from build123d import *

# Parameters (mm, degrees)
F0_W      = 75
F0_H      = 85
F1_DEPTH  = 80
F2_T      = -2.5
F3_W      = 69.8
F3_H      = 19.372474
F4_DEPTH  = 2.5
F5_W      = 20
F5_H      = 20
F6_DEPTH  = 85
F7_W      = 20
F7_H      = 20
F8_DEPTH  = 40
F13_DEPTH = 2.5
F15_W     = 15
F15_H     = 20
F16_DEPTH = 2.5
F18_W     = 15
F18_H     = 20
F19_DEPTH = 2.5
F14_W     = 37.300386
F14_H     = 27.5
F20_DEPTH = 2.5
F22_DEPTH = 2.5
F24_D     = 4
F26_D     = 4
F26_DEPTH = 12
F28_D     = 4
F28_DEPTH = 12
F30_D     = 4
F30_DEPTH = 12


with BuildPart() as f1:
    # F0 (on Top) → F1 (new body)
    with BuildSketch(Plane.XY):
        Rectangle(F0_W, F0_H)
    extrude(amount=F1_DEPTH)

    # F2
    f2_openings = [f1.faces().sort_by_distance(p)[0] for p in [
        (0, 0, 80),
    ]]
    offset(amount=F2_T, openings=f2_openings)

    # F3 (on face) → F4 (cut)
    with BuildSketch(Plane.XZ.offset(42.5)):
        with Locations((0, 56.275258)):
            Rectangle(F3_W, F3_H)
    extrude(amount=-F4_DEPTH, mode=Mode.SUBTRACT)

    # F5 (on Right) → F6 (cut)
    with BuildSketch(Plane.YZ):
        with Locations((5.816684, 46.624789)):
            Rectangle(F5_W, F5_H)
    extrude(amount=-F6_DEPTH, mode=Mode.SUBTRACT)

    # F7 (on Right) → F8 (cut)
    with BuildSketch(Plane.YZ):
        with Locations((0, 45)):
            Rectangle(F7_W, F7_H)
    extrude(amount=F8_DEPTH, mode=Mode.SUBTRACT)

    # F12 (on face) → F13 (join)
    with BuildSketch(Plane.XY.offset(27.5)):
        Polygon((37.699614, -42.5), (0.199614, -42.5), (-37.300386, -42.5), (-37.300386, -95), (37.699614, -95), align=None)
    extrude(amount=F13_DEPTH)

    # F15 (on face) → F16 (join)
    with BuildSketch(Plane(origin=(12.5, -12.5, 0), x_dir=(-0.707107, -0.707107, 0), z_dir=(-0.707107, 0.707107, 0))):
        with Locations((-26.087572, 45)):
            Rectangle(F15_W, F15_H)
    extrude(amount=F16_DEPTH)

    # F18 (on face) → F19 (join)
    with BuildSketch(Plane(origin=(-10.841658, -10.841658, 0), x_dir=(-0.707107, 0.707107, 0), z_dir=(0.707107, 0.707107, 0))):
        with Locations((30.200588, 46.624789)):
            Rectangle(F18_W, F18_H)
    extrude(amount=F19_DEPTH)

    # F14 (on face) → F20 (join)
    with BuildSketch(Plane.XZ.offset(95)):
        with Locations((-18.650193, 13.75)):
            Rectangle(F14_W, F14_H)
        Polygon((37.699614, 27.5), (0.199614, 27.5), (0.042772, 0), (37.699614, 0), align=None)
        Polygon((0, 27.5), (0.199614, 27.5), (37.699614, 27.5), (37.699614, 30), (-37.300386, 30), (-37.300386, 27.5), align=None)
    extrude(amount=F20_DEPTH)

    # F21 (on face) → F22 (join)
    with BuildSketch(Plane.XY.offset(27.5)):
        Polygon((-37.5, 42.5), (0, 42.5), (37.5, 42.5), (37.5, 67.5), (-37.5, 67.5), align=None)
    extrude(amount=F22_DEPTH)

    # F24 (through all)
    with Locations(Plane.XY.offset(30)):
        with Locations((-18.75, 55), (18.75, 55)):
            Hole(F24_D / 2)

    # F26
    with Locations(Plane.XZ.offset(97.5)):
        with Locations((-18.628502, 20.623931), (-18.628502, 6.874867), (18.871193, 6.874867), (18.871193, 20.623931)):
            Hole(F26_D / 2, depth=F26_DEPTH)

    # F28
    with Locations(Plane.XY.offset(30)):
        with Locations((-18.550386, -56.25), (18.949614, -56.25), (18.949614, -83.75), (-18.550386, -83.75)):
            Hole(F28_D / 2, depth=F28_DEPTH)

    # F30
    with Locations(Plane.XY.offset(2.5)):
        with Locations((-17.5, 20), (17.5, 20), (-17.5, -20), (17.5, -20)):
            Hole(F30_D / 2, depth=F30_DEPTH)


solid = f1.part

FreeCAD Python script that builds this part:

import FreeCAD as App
import Part
import Sketcher
from FreeCAD import Vector
Q = App.Units.Quantity


def faces_at(feature, points):
    """Names of the faces that lie closest to the given points."""
    faces = feature.Shape.Faces
    near = lambda p: min(range(len(faces)), key=lambda i: faces[i].distToShape(Part.Vertex(*p))[0])
    return sorted({f"Face{near(p) + 1}" for p in points})


def add_polygon(sketch, points):
    """Adds a closed chain of lines whose ends are joined by coincident constraints."""
    first, n = sketch.GeometryCount, len(points)
    for a, b in zip(points, points[1:] + points[:1]):
        sketch.addGeometry(Part.LineSegment(App.Vector(*a, 0), App.Vector(*b, 0)), False)
    for i in range(n):
        sketch.addConstraint(Sketcher.Constraint("Coincident", first + i, 2, first + (i + 1) % n, 1))

doc = App.newDocument("Part")
body = doc.addObject("PartDesign::Body", "Body")

sketch1 = body.newObject("Sketcher::SketchObject", "Sketch")
sketch1.AttachmentSupport = (doc.getObject("XY_Plane"), [""])
sketch1.MapMode = "FlatFace"
add_polygon(sketch1, [(-37.5, 42.5), (-37.5, -42.5), (37.5, -42.5), (37.5, 42.5)])
sketch1.addConstraint(Sketcher.Constraint("Vertical", 0))
sketch1.addConstraint(Sketcher.Constraint("Horizontal", 1))
sketch1.addConstraint(Sketcher.Constraint("Vertical", 2))
sketch1.addConstraint(Sketcher.Constraint("Horizontal", 3))
sketch1.addConstraint(Sketcher.Constraint("Symmetric", 0, 2, 2, 2, -1, 1))
sketch1.addConstraint(Sketcher.Constraint("DistanceX", 1, 1, 1, 2, Q("75 mm")))
sketch1.addConstraint(Sketcher.Constraint("DistanceY", 0, 2, 0, 1, Q("85 mm")))
pad1 = body.newObject("PartDesign::Pad", "Pad")
pad1.Profile = sketch1
pad1.Length = 80
doc.recompute()

thickness = body.newObject("PartDesign::Thickness", "Thickness")
thickness.Base = (pad1, faces_at(pad1, [(0, 0, 80)]))
thickness.Value = 2.5
thickness.Reversed = True
thickness.Join = "Arc"

sketch2 = body.newObject("Sketcher::SketchObject", "Sketch001")
sketch2.AttachmentSupport = (doc.getObject("XZ_Plane"), [""])
sketch2.MapMode = "FlatFace"
sketch2.AttachmentOffset = App.Placement(Vector(0, 0, 42.5), App.Rotation())
add_polygon(sketch2, [(-34.9, 65.961495), (-34.9, 46.589021), (34.9, 46.589021), (34.9, 65.961495)])
sketch2.addConstraint(Sketcher.Constraint("Vertical", 0))
sketch2.addConstraint(Sketcher.Constraint("Horizontal", 1))
sketch2.addConstraint(Sketcher.Constraint("Vertical", 2))
sketch2.addConstraint(Sketcher.Constraint("Horizontal", 3))
sketch2.addConstraint(Sketcher.Constraint("DistanceX", 1, 1, 1, 2, Q("69.8 mm")))
sketch2.addConstraint(Sketcher.Constraint("DistanceX", 0, 2, -1, 1, Q("34.9 mm")))
sketch2.addConstraint(Sketcher.Constraint("DistanceY", 0, 2, 0, 1, Q("19.372474 mm")))
sketch2.addConstraint(Sketcher.Constraint("DistanceY", -1, 1, 0, 2, Q("46.589021 mm")))
pocket1 = body.newObject("PartDesign::Pocket", "Pocket")
pocket1.Profile = sketch2
pocket1.Length = 2.5

sketch3 = body.newObject("Sketcher::SketchObject", "Sketch002")
sketch3.AttachmentSupport = (doc.getObject("YZ_Plane"), [""])
sketch3.MapMode = "FlatFace"
add_polygon(sketch3, [(-4.183316, 56.624789), (-4.183316, 36.624789), (15.816684, 36.624789), (15.816684, 56.624789)])
sketch3.addConstraint(Sketcher.Constraint("Vertical", 0))
sketch3.addConstraint(Sketcher.Constraint("Horizontal", 1))
sketch3.addConstraint(Sketcher.Constraint("Vertical", 2))
sketch3.addConstraint(Sketcher.Constraint("Horizontal", 3))
sketch3.addConstraint(Sketcher.Constraint("Equal", 3, 0))
sketch3.addConstraint(Sketcher.Constraint("DistanceX", 1, 1, 1, 2, Q("20 mm")))
sketch3.addConstraint(Sketcher.Constraint("DistanceY", -1, 1, 0, 2, Q("36.624789 mm")))
sketch3.addConstraint(Sketcher.Constraint("DistanceX", 0, 2, -1, 1, Q("4.183316 mm")))
pocket2 = body.newObject("PartDesign::Pocket", "Pocket001")
pocket2.Profile = sketch3
pocket2.Length = 85

sketch4 = body.newObject("Sketcher::SketchObject", "Sketch003")
sketch4.AttachmentSupport = (doc.getObject("YZ_Plane"), [""])
sketch4.MapMode = "FlatFace"
add_polygon(sketch4, [(-10, 55), (-10, 35), (10, 35), (10, 55)])
sketch4.addConstraint(Sketcher.Constraint("Vertical", 0))
sketch4.addConstraint(Sketcher.Constraint("Horizontal", 1))
sketch4.addConstraint(Sketcher.Constraint("Vertical", 2))
sketch4.addConstraint(Sketcher.Constraint("Horizontal", 3))
sketch4.addConstraint(Sketcher.Constraint("Equal", 3, 0))
sketch4.addConstraint(Sketcher.Constraint("DistanceX", 1, 1, 1, 2, Q("20 mm")))
sketch4.addConstraint(Sketcher.Constraint("DistanceX", 0, 2, -1, 1, Q("10 mm")))
sketch4.addConstraint(Sketcher.Constraint("DistanceY", -1, 1, 0, 2, Q("35 mm")))
pocket3 = body.newObject("PartDesign::Pocket", "Pocket002")
pocket3.Profile = sketch4
pocket3.Length = 40
pocket3.Reversed = True

sketch5 = body.newObject("Sketcher::SketchObject", "Sketch004")
sketch5.AttachmentSupport = (doc.getObject("XY_Plane"), [""])
sketch5.MapMode = "FlatFace"
sketch5.AttachmentOffset = App.Placement(Vector(0, 0, 27.5), App.Rotation())
add_polygon(sketch5, [(37.699614, -42.5), (-37.300386, -42.5), (-37.300386, -95), (37.699614, -95)])
sketch5.addConstraint(Sketcher.Constraint("Horizontal", 0))
sketch5.addConstraint(Sketcher.Constraint("Vertical", 1))
sketch5.addConstraint(Sketcher.Constraint("Horizontal", 2))
sketch5.addConstraint(Sketcher.Constraint("Vertical", 3))
sketch5.addConstraint(Sketcher.Constraint("DistanceX", 0, 2, 0, 1, Q("75 mm")))
sketch5.addConstraint(Sketcher.Constraint("DistanceY", 1, 2, 1, 1, Q("52.5 mm")))
sketch5.addConstraint(Sketcher.Constraint("DistanceY", 1, 2, -1, 1, Q("95 mm")))
sketch5.addConstraint(Sketcher.Constraint("DistanceX", 0, 2, -1, 1, Q("37.300386 mm")))
pad2 = body.newObject("PartDesign::Pad", "Pad001")
pad2.Profile = sketch5
pad2.Length = 2.5

sketch6 = body.newObject("Sketcher::SketchObject", "Sketch005")
sketch6.Placement = App.Placement(Vector(12.5, -12.5, 0), App.Rotation(Vector(-0.707106781, -0.707106781, 0), Vector(0, 0, 0.999999999), Vector(-0.707106781, 0.707106781, 0), "ZXY"))
add_polygon(sketch6, [(-33.587572, 55), (-33.587572, 35), (-18.587572, 35), (-18.587572, 55)])
sketch6.addConstraint(Sketcher.Constraint("Vertical", 0))
sketch6.addConstraint(Sketcher.Constraint("Horizontal", 1))
sketch6.addConstraint(Sketcher.Constraint("Vertical", 2))
sketch6.addConstraint(Sketcher.Constraint("Horizontal", 3))
sketch6.addConstraint(Sketcher.Constraint("DistanceX", 1, 1, 1, 2, Q("15 mm")))
sketch6.addConstraint(Sketcher.Constraint("DistanceY", 0, 2, 0, 1, Q("20 mm")))
sketch6.addConstraint(Sketcher.Constraint("DistanceY", -1, 1, 0, 2, Q("35 mm")))
sketch6.addConstraint(Sketcher.Constraint("DistanceX", 0, 2, -1, 1, Q("33.587572 mm")))
pad3 = body.newObject("PartDesign::Pad", "Pad002")
pad3.Profile = sketch6
pad3.Length = 2.5

sketch7 = body.newObject("Sketcher::SketchObject", "Sketch006")
sketch7.Placement = App.Placement(Vector(-10.841658, -10.841658, 0), App.Rotation(Vector(-0.707106781, 0.707106781, 0), Vector(0, 0, 0.999999999), Vector(0.707106781, 0.707106781, 0), "ZXY"))
add_polygon(sketch7, [(22.700588, 56.624789), (22.700588, 36.624789), (37.700588, 36.624789), (37.700588, 56.624789)])
sketch7.addConstraint(Sketcher.Constraint("Vertical", 0))
sketch7.addConstraint(Sketcher.Constraint("Horizontal", 1))
sketch7.addConstraint(Sketcher.Constraint("Vertical", 2))
sketch7.addConstraint(Sketcher.Constraint("Horizontal", 3))
sketch7.addConstraint(Sketcher.Constraint("DistanceX", 1, 1, 1, 2, Q("15 mm")))
sketch7.addConstraint(Sketcher.Constraint("DistanceY", 0, 2, 0, 1, Q("20 mm")))
sketch7.addConstraint(Sketcher.Constraint("DistanceY", -1, 1, 0, 2, Q("36.624789 mm")))
sketch7.addConstraint(Sketcher.Constraint("DistanceX", -1, 1, 0, 2, Q("22.700588 mm")))
pad4 = body.newObject("PartDesign::Pad", "Pad003")
pad4.Profile = sketch7
pad4.Length = 2.5

sketch8 = body.newObject("Sketcher::SketchObject", "Sketch007")
sketch8.AttachmentSupport = (doc.getObject("XZ_Plane"), [""])
sketch8.MapMode = "FlatFace"
sketch8.AttachmentOffset = App.Placement(Vector(0, 0, 95), App.Rotation())
add_polygon(sketch8, [(-37.300386, 0), (0, 0), (0, 27.5), (0.199614, 27.5), (0.042772, 0), (37.699614, 0), (37.699614, 30), (-37.300386, 30)])
sketch8.addConstraint(Sketcher.Constraint("Horizontal", 0))
sketch8.addConstraint(Sketcher.Constraint("Vertical", 1))
sketch8.addConstraint(Sketcher.Constraint("Horizontal", 2))
sketch8.addConstraint(Sketcher.Constraint("Horizontal", 4))
sketch8.addConstraint(Sketcher.Constraint("Vertical", 5))
sketch8.addConstraint(Sketcher.Constraint("Horizontal", 6))
sketch8.addConstraint(Sketcher.Constraint("Vertical", 7))
sketch8.addConstraint(Sketcher.Constraint("Coincident", 0, 2, -1, 1))
sketch8.addConstraint(Sketcher.Constraint("PointOnObject", 3, 2, -1))
sketch8.addConstraint(Sketcher.Constraint("DistanceX", 6, 2, 6, 1, Q("75 mm")))
sketch8.addConstraint(Sketcher.Constraint("DistanceY", 5, 1, 5, 2, Q("30 mm")))
sketch8.addConstraint(Sketcher.Constraint("DistanceY", 1, 1, 1, 2, Q("27.5 mm")))
sketch8.addConstraint(Sketcher.Constraint("DistanceX", 2, 2, 4, 2, Q("37.5 mm")))
sketch8.addConstraint(Sketcher.Constraint("DistanceX", 4, 1, 4, 2, Q("37.656842 mm")))
sketch8.addConstraint(Sketcher.Constraint("DistanceX", 0, 1, 0, 2, Q("37.300386 mm")))
pad5 = body.newObject("PartDesign::Pad", "Pad004")
pad5.Profile = sketch8
pad5.Length = 2.5

sketch9 = body.newObject("Sketcher::SketchObject", "Sketch008")
sketch9.AttachmentSupport = (doc.getObject("XY_Plane"), [""])
sketch9.MapMode = "FlatFace"
sketch9.AttachmentOffset = App.Placement(Vector(0, 0, 27.5), App.Rotation())
add_polygon(sketch9, [(-37.5, 42.5), (37.5, 42.5), (37.5, 67.5), (-37.5, 67.5)])
sketch9.addConstraint(Sketcher.Constraint("Horizontal", 0))
sketch9.addConstraint(Sketcher.Constraint("Vertical", 1))
sketch9.addConstraint(Sketcher.Constraint("Horizontal", 2))
sketch9.addConstraint(Sketcher.Constraint("Vertical", 3))
sketch9.addConstraint(Sketcher.Constraint("DistanceX", 0, 1, 0, 2, Q("75 mm")))
sketch9.addConstraint(Sketcher.Constraint("DistanceY", 1, 1, 1, 2, Q("25 mm")))
sketch9.addConstraint(Sketcher.Constraint("DistanceX", -1, 1, 0, 2, Q("37.5 mm")))
sketch9.addConstraint(Sketcher.Constraint("DistanceY", -1, 1, 0, 2, Q("42.5 mm")))
pad6 = body.newObject("PartDesign::Pad", "Pad005")
pad6.Profile = sketch9
pad6.Length = 2.5

sketch10 = body.newObject("Sketcher::SketchObject", "Sketch009")
sketch10.AttachmentSupport = (doc.getObject("XY_Plane"), [""])
sketch10.MapMode = "FlatFace"
sketch10.AttachmentOffset = App.Placement(Vector(0, 0, 30), App.Rotation())
sketch10.addGeometry(Part.Circle(Vector(-18.75, 55, 0), Vector(0, 0, 1), 2), False)
sketch10.addGeometry(Part.Circle(Vector(18.75, 55, 0), Vector(0, 0, 1), 2), False)
sketch10.addConstraint(Sketcher.Constraint("Equal", 0, 1))
sketch10.addConstraint(Sketcher.Constraint("Symmetric", 0, 3, 1, 3, -2))
sketch10.addConstraint(Sketcher.Constraint("Diameter", 0, Q("4 mm")))
sketch10.addConstraint(Sketcher.Constraint("DistanceY", -1, 1, 0, 3, Q("55 mm")))
sketch10.addConstraint(Sketcher.Constraint("DistanceX", 0, 3, 1, 3, Q("37.5 mm")))
doc.recompute()
hole = body.newObject("PartDesign::Hole", "Hole")
hole.Profile = sketch10
hole.ThreadType = "None"
hole.Diameter = 4
hole.DepthType = "ThroughAll"

sketch11 = body.newObject("Sketcher::SketchObject", "Sketch010")
sketch11.AttachmentSupport = (doc.getObject("XZ_Plane"), [""])
sketch11.MapMode = "FlatFace"
sketch11.AttachmentOffset = App.Placement(Vector(0, 0, 97.5), App.Rotation())
sketch11.addGeometry(Part.Circle(Vector(-18.628502, 20.623931, 0), Vector(0, 0, 1), 2), False)
sketch11.addGeometry(Part.Circle(Vector(-18.628502, 6.874867, 0), Vector(0, 0, 1), 2), False)
sketch11.addGeometry(Part.Circle(Vector(18.871193, 6.874867, 0), Vector(0, 0, 1), 2), False)
sketch11.addGeometry(Part.Circle(Vector(18.871193, 20.623931, 0), Vector(0, 0, 1), 2), False)
sketch11.addConstraint(Sketcher.Constraint("Equal", 0, 1))
sketch11.addConstraint(Sketcher.Constraint("Equal", 1, 2))
sketch11.addConstraint(Sketcher.Constraint("Equal", 2, 3))
sketch11.addConstraint(Sketcher.Constraint("Horizontal", 1, 3, 2, 3))
sketch11.addConstraint(Sketcher.Constraint("Horizontal", 0, 3, 3, 3))
sketch11.addConstraint(Sketcher.Constraint("Vertical", 0, 3, 1, 3))
sketch11.addConstraint(Sketcher.Constraint("Vertical", 2, 3, 3, 3))
sketch11.addConstraint(Sketcher.Constraint("Diameter", 0, Q("4 mm")))
sketch11.addConstraint(Sketcher.Constraint("DistanceY", -1, 1, 0, 3, Q("20.623931 mm")))
sketch11.addConstraint(Sketcher.Constraint("DistanceX", 0, 3, -1, 1, Q("18.628502 mm")))
sketch11.addConstraint(Sketcher.Constraint("DistanceY", -1, 1, 1, 3, Q("6.874867 mm")))
sketch11.addConstraint(Sketcher.Constraint("DistanceX", -1, 1, 2, 3, Q("18.871193 mm")))
doc.recompute()
hole2 = body.newObject("PartDesign::Hole", "Hole001")
hole2.Profile = sketch11
hole2.ThreadType = "None"
hole2.Diameter = 4
hole2.DepthType = "Dimension"
hole2.Depth = 12
hole2.DrillPoint = "Flat"

sketch12 = body.newObject("Sketcher::SketchObject", "Sketch011")
sketch12.AttachmentSupport = (doc.getObject("XY_Plane"), [""])
sketch12.MapMode = "FlatFace"
sketch12.AttachmentOffset = App.Placement(Vector(0, 0, 30), App.Rotation())
sketch12.addGeometry(Part.Circle(Vector(-18.550386, -56.25, 0), Vector(0, 0, 1), 2), False)
sketch12.addGeometry(Part.Circle(Vector(18.949614, -56.25, 0), Vector(0, 0, 1), 2), False)
sketch12.addGeometry(Part.Circle(Vector(18.949614, -83.75, 0), Vector(0, 0, 1), 2), False)
sketch12.addGeometry(Part.Circle(Vector(-18.550386, -83.75, 0), Vector(0, 0, 1), 2), False)
sketch12.addConstraint(Sketcher.Constraint("Equal", 0, 1))
sketch12.addConstraint(Sketcher.Constraint("Equal", 1, 2))
sketch12.addConstraint(Sketcher.Constraint("Equal", 2, 3))
sketch12.addConstraint(Sketcher.Constraint("Horizontal", 0, 3, 1, 3))
sketch12.addConstraint(Sketcher.Constraint("Horizontal", 2, 3, 3, 3))
sketch12.addConstraint(Sketcher.Constraint("Vertical", 1, 3, 2, 3))
sketch12.addConstraint(Sketcher.Constraint("Vertical", 0, 3, 3, 3))
sketch12.addConstraint(Sketcher.Constraint("Diameter", 0, Q("4 mm")))
sketch12.addConstraint(Sketcher.Constraint("DistanceX", 0, 3, 1, 3, Q("37.5 mm")))
sketch12.addConstraint(Sketcher.Constraint("DistanceY", 2, 3, 1, 3, Q("27.5 mm")))
sketch12.addConstraint(Sketcher.Constraint("DistanceY", 0, 3, -1, 1, Q("56.25 mm")))
sketch12.addConstraint(Sketcher.Constraint("DistanceX", 0, 3, -1, 1, Q("18.550386 mm")))
doc.recompute()
hole3 = body.newObject("PartDesign::Hole", "Hole002")
hole3.Profile = sketch12
hole3.ThreadType = "None"
hole3.Diameter = 4
hole3.DepthType = "Dimension"
hole3.Depth = 12
hole3.DrillPoint = "Flat"

sketch13 = body.newObject("Sketcher::SketchObject", "Sketch012")
sketch13.AttachmentSupport = (doc.getObject("XY_Plane"), [""])
sketch13.MapMode = "FlatFace"
sketch13.AttachmentOffset = App.Placement(Vector(0, 0, 2.5), App.Rotation())
sketch13.addGeometry(Part.Circle(Vector(-17.5, 20, 0), Vector(0, 0, 1), 2), False)
sketch13.addGeometry(Part.Circle(Vector(17.5, 20, 0), Vector(0, 0, 1), 2), False)
sketch13.addGeometry(Part.Circle(Vector(-17.5, -20, 0), Vector(0, 0, 1), 2), False)
sketch13.addGeometry(Part.Circle(Vector(17.5, -20, 0), Vector(0, 0, 1), 2), False)
sketch13.addConstraint(Sketcher.Constraint("Equal", 0, 1))
sketch13.addConstraint(Sketcher.Constraint("Equal", 1, 2))
sketch13.addConstraint(Sketcher.Constraint("Equal", 2, 3))
sketch13.addConstraint(Sketcher.Constraint("Symmetric", 1, 3, 2, 3, -1, 1))
sketch13.addConstraint(Sketcher.Constraint("Symmetric", 0, 3, 3, 3, -1, 1))
sketch13.addConstraint(Sketcher.Constraint("Symmetric", 0, 3, 1, 3, -2))
sketch13.addConstraint(Sketcher.Constraint("Diameter", 0, Q("4 mm")))
sketch13.addConstraint(Sketcher.Constraint("DistanceY", -1, 1, 0, 3, Q("20 mm")))
sketch13.addConstraint(Sketcher.Constraint("DistanceX", 0, 3, 1, 3, Q("35 mm")))
doc.recompute()
hole4 = body.newObject("PartDesign::Hole", "Hole003")
hole4.Profile = sketch13
hole4.ThreadType = "None"
hole4.Diameter = 4
hole4.DepthType = "Dimension"
hole4.Depth = 12
hole4.DrillPoint = "Flat"

doc.recompute()
